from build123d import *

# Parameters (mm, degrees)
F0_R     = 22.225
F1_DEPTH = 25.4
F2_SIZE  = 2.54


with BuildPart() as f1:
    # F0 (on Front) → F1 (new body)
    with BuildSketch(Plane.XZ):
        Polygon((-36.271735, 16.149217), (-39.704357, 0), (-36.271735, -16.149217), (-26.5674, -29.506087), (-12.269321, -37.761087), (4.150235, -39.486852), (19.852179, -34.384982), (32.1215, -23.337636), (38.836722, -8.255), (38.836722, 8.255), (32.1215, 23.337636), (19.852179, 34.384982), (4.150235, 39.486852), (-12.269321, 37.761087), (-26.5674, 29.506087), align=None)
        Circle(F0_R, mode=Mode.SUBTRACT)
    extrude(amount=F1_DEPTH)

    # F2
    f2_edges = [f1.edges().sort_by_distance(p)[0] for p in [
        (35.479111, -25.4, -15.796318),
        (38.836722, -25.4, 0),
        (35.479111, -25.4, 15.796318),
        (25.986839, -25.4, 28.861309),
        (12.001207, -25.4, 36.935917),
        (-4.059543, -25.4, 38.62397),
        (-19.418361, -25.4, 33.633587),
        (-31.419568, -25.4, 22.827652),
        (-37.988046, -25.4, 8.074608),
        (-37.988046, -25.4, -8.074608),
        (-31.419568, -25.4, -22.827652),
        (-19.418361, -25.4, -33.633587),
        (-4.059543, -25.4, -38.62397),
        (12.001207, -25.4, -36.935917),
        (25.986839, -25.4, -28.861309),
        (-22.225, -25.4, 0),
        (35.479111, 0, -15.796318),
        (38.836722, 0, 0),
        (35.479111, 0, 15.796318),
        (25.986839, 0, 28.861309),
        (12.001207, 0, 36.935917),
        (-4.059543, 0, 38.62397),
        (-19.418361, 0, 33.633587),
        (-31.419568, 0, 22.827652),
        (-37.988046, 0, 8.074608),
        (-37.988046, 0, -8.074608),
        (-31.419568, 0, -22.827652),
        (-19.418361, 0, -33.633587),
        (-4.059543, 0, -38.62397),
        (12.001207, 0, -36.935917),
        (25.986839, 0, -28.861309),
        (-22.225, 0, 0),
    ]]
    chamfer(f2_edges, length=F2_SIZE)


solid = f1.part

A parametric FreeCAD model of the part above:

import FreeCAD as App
import Part
import Sketcher
Q = App.Units.Quantity


def edges_at(feature, points):
    """Names of the edges that pass closest to the given points."""
    edges = feature.Shape.Edges
    near = lambda p: min(range(len(edges)), key=lambda i: edges[i].distToShape(Part.Vertex(*p))[0])
    return sorted({f"Edge{near(p) + 1}" for p in points})

doc = App.newDocument("Part")
body = doc.addObject("PartDesign::Body", "Body")

sketch1 = body.newObject("Sketcher::SketchObject", "Sketch")
sketch1.AttachmentSupport = (doc.getObject("XZ_Plane"), [""])
sketch1.MapMode = "FlatFace"
sketch1.addGeometry([
    Part.LineSegment(App.Vector(-36, 16, 0), App.Vector(-40, 0, 0)),
    Part.LineSegment(App.Vector(-40, 0, 0), App.Vector(-36, -16, 0)),
    Part.LineSegment(App.Vector(-36, -16, 0), App.Vector(-27, -30, 0)),
    Part.LineSegment(App.Vector(-27, -30, 0), App.Vector(-12, -38, 0)),
    Part.LineSegment(App.Vector(-12, -38, 0), App.Vector(4, -39, 0)),
    Part.LineSegment(App.Vector(4, -39, 0), App.Vector(20, -34, 0)),
    Part.LineSegment(App.Vector(20, -34, 0), App.Vector(32, -23, 0)),
    Part.LineSegment(App.Vector(32, -23, 0), App.Vector(39, -8, 0)),
    Part.LineSegment(App.Vector(39, -8, 0), App.Vector(39, 8, 0)),
    Part.LineSegment(App.Vector(39, 8, 0), App.Vector(32, 23, 0)),
    Part.LineSegment(App.Vector(32, 23, 0), App.Vector(20, 34, 0)),
    Part.LineSegment(App.Vector(20, 34, 0), App.Vector(4, 39, 0)),
    Part.LineSegment(App.Vector(4, 39, 0), App.Vector(-12, 38, 0)),
    Part.LineSegment(App.Vector(-12, 38, 0), App.Vector(-27, 30, 0)),
    Part.LineSegment(App.Vector(-27, 30, 0), App.Vector(-36, 16, 0)),
    Part.Circle(App.Vector(0, 0, 0), App.Vector(0, 0, 1), 22),
], False)
sketch1.addConstraint([
    Sketcher.Constraint("Coincident", 0, 2, 1, 1),
    Sketcher.Constraint("Coincident", 1, 2, 2, 1),
    Sketcher.Constraint("Coincident", 2, 2, 3, 1),
    Sketcher.Constraint("Coincident", 3, 2, 4, 1),
    Sketcher.Constraint("Coincident", 4, 2, 5, 1),
    Sketcher.Constraint("Coincident", 5, 2, 6, 1),
    Sketcher.Constraint("Coincident", 6, 2, 7, 1),
    Sketcher.Constraint("Coincident", 7, 2, 8, 1),
    Sketcher.Constraint("Coincident", 8, 2, 9, 1),
    Sketcher.Constraint("Coincident", 9, 2, 10, 1),
    Sketcher.Constraint("Coincident", 10, 2, 11, 1),
    Sketcher.Constraint("Coincident", 11, 2, 12, 1),
    Sketcher.Constraint("Coincident", 12, 2, 13, 1),
    Sketcher.Constraint("Coincident", 13, 2, 14, 1),
    Sketcher.Constraint("Coincident", 14, 2, 0, 1),
    Sketcher.Constraint("Vertical", 8),
    Sketcher.Constraint("Coincident", 15, 3, -1, 1),
    Sketcher.Constraint("Symmetric", 6, 2, 9, 2, -1),
    Sketcher.Constraint("Symmetric", 5, 2, 10, 2, -1),
    Sketcher.Constraint("Symmetric", 4, 2, 11, 2, -1),
    Sketcher.Constraint("Symmetric", 3, 2, 12, 2, -1),
    Sketcher.Constraint("Symmetric", 2, 2, 13, 2, -1),
    Sketcher.Constraint("Symmetric", 1, 2, 14, 2, -1),
    Sketcher.Constraint("PointOnObject", 0, 2, -1),
    Sketcher.Constraint("Equal", 1, 2),
    Sketcher.Constraint("Equal", 2, 3),
    Sketcher.Constraint("Equal", 3, 4),
    Sketcher.Constraint("Equal", 4, 5),
    Sketcher.Constraint("Equal", 5, 6),
    Sketcher.Constraint("Equal", 6, 7),
    Sketcher.Constraint("Equal", 7, 9),
    Sketcher.Constraint("Diameter", 15, Q("1.75 in")),
    Sketcher.Constraint("Angle", 0, Q("-102 deg")),
    Sketcher.Constraint("Angle", 2, Q("-53.999997 deg")),
    Sketcher.Constraint("Angle", 3, Q("-30.000001 deg")),
    Sketcher.Constraint("Angle", 4, Q("-6 deg")),
    Sketcher.Constraint("Angle", 5, Q("17.999997 deg")),
    Sketcher.Constraint("Angle", 6, Q("41.999999 deg")),
    Sketcher.Constraint("Angle", 7, Q("66.000001 deg")),
    Sketcher.Constraint("DistanceY", 8, 1, 8, 2, Q("0.65 in")),
    Sketcher.Constraint("DistanceX", 2, 2, -1, 1, 26.5674),
])
pad1 = body.newObject("PartDesign::Pad", "Pad")
pad1.Profile = sketch1
pad1.Length = Q("1 in")
doc.recompute()

chamfer = body.newObject("PartDesign::Chamfer", "Chamfer")
chamfer.Base = (pad1, edges_at(pad1, [
    (35.479, -25.4, -15.796),
    (38.837, -25.4, 0),
    (35.479, -25.4, 15.796),
    (25.987, -25.4, 28.861),
    (12.001, -25.4, 36.936),
    (-4.06, -25.4, 38.624),
    (-19.418, -25.4, 33.634),
    (-31.42, -25.4, 22.828),
    (-37.988, -25.4, 8.075),
    (-37.988, -25.4, -8.075),
    (-31.42, -25.4, -22.828),
    (-19.418, -25.4, -33.634),
    (-4.06, -25.4, -38.624),
    (12.001, -25.4, -36.936),
    (25.987, -25.4, -28.861),
    (-22.225, -25.4, 0),
    (35.479, 0, -15.796),
    (38.837, 0, 0),
    (35.479, 0, 15.796),
    (25.987, 0, 28.861),
    (12.001, 0, 36.936),
    (-4.06, 0, 38.624),
    (-19.418, 0, 33.634),
    (-31.42, 0, 22.828),
    (-37.988, 0, 8.075),
    (-37.988, 0, -8.075),
    (-31.42, 0, -22.828),
    (-19.418, 0, -33.634),
    (-4.06, 0, -38.624),
    (12.001, 0, -36.936),
    (25.987, 0, -28.861),
    (-22.225, 0, 0),
]))
chamfer.Size = Q("0.1 in")

doc.recompute()
